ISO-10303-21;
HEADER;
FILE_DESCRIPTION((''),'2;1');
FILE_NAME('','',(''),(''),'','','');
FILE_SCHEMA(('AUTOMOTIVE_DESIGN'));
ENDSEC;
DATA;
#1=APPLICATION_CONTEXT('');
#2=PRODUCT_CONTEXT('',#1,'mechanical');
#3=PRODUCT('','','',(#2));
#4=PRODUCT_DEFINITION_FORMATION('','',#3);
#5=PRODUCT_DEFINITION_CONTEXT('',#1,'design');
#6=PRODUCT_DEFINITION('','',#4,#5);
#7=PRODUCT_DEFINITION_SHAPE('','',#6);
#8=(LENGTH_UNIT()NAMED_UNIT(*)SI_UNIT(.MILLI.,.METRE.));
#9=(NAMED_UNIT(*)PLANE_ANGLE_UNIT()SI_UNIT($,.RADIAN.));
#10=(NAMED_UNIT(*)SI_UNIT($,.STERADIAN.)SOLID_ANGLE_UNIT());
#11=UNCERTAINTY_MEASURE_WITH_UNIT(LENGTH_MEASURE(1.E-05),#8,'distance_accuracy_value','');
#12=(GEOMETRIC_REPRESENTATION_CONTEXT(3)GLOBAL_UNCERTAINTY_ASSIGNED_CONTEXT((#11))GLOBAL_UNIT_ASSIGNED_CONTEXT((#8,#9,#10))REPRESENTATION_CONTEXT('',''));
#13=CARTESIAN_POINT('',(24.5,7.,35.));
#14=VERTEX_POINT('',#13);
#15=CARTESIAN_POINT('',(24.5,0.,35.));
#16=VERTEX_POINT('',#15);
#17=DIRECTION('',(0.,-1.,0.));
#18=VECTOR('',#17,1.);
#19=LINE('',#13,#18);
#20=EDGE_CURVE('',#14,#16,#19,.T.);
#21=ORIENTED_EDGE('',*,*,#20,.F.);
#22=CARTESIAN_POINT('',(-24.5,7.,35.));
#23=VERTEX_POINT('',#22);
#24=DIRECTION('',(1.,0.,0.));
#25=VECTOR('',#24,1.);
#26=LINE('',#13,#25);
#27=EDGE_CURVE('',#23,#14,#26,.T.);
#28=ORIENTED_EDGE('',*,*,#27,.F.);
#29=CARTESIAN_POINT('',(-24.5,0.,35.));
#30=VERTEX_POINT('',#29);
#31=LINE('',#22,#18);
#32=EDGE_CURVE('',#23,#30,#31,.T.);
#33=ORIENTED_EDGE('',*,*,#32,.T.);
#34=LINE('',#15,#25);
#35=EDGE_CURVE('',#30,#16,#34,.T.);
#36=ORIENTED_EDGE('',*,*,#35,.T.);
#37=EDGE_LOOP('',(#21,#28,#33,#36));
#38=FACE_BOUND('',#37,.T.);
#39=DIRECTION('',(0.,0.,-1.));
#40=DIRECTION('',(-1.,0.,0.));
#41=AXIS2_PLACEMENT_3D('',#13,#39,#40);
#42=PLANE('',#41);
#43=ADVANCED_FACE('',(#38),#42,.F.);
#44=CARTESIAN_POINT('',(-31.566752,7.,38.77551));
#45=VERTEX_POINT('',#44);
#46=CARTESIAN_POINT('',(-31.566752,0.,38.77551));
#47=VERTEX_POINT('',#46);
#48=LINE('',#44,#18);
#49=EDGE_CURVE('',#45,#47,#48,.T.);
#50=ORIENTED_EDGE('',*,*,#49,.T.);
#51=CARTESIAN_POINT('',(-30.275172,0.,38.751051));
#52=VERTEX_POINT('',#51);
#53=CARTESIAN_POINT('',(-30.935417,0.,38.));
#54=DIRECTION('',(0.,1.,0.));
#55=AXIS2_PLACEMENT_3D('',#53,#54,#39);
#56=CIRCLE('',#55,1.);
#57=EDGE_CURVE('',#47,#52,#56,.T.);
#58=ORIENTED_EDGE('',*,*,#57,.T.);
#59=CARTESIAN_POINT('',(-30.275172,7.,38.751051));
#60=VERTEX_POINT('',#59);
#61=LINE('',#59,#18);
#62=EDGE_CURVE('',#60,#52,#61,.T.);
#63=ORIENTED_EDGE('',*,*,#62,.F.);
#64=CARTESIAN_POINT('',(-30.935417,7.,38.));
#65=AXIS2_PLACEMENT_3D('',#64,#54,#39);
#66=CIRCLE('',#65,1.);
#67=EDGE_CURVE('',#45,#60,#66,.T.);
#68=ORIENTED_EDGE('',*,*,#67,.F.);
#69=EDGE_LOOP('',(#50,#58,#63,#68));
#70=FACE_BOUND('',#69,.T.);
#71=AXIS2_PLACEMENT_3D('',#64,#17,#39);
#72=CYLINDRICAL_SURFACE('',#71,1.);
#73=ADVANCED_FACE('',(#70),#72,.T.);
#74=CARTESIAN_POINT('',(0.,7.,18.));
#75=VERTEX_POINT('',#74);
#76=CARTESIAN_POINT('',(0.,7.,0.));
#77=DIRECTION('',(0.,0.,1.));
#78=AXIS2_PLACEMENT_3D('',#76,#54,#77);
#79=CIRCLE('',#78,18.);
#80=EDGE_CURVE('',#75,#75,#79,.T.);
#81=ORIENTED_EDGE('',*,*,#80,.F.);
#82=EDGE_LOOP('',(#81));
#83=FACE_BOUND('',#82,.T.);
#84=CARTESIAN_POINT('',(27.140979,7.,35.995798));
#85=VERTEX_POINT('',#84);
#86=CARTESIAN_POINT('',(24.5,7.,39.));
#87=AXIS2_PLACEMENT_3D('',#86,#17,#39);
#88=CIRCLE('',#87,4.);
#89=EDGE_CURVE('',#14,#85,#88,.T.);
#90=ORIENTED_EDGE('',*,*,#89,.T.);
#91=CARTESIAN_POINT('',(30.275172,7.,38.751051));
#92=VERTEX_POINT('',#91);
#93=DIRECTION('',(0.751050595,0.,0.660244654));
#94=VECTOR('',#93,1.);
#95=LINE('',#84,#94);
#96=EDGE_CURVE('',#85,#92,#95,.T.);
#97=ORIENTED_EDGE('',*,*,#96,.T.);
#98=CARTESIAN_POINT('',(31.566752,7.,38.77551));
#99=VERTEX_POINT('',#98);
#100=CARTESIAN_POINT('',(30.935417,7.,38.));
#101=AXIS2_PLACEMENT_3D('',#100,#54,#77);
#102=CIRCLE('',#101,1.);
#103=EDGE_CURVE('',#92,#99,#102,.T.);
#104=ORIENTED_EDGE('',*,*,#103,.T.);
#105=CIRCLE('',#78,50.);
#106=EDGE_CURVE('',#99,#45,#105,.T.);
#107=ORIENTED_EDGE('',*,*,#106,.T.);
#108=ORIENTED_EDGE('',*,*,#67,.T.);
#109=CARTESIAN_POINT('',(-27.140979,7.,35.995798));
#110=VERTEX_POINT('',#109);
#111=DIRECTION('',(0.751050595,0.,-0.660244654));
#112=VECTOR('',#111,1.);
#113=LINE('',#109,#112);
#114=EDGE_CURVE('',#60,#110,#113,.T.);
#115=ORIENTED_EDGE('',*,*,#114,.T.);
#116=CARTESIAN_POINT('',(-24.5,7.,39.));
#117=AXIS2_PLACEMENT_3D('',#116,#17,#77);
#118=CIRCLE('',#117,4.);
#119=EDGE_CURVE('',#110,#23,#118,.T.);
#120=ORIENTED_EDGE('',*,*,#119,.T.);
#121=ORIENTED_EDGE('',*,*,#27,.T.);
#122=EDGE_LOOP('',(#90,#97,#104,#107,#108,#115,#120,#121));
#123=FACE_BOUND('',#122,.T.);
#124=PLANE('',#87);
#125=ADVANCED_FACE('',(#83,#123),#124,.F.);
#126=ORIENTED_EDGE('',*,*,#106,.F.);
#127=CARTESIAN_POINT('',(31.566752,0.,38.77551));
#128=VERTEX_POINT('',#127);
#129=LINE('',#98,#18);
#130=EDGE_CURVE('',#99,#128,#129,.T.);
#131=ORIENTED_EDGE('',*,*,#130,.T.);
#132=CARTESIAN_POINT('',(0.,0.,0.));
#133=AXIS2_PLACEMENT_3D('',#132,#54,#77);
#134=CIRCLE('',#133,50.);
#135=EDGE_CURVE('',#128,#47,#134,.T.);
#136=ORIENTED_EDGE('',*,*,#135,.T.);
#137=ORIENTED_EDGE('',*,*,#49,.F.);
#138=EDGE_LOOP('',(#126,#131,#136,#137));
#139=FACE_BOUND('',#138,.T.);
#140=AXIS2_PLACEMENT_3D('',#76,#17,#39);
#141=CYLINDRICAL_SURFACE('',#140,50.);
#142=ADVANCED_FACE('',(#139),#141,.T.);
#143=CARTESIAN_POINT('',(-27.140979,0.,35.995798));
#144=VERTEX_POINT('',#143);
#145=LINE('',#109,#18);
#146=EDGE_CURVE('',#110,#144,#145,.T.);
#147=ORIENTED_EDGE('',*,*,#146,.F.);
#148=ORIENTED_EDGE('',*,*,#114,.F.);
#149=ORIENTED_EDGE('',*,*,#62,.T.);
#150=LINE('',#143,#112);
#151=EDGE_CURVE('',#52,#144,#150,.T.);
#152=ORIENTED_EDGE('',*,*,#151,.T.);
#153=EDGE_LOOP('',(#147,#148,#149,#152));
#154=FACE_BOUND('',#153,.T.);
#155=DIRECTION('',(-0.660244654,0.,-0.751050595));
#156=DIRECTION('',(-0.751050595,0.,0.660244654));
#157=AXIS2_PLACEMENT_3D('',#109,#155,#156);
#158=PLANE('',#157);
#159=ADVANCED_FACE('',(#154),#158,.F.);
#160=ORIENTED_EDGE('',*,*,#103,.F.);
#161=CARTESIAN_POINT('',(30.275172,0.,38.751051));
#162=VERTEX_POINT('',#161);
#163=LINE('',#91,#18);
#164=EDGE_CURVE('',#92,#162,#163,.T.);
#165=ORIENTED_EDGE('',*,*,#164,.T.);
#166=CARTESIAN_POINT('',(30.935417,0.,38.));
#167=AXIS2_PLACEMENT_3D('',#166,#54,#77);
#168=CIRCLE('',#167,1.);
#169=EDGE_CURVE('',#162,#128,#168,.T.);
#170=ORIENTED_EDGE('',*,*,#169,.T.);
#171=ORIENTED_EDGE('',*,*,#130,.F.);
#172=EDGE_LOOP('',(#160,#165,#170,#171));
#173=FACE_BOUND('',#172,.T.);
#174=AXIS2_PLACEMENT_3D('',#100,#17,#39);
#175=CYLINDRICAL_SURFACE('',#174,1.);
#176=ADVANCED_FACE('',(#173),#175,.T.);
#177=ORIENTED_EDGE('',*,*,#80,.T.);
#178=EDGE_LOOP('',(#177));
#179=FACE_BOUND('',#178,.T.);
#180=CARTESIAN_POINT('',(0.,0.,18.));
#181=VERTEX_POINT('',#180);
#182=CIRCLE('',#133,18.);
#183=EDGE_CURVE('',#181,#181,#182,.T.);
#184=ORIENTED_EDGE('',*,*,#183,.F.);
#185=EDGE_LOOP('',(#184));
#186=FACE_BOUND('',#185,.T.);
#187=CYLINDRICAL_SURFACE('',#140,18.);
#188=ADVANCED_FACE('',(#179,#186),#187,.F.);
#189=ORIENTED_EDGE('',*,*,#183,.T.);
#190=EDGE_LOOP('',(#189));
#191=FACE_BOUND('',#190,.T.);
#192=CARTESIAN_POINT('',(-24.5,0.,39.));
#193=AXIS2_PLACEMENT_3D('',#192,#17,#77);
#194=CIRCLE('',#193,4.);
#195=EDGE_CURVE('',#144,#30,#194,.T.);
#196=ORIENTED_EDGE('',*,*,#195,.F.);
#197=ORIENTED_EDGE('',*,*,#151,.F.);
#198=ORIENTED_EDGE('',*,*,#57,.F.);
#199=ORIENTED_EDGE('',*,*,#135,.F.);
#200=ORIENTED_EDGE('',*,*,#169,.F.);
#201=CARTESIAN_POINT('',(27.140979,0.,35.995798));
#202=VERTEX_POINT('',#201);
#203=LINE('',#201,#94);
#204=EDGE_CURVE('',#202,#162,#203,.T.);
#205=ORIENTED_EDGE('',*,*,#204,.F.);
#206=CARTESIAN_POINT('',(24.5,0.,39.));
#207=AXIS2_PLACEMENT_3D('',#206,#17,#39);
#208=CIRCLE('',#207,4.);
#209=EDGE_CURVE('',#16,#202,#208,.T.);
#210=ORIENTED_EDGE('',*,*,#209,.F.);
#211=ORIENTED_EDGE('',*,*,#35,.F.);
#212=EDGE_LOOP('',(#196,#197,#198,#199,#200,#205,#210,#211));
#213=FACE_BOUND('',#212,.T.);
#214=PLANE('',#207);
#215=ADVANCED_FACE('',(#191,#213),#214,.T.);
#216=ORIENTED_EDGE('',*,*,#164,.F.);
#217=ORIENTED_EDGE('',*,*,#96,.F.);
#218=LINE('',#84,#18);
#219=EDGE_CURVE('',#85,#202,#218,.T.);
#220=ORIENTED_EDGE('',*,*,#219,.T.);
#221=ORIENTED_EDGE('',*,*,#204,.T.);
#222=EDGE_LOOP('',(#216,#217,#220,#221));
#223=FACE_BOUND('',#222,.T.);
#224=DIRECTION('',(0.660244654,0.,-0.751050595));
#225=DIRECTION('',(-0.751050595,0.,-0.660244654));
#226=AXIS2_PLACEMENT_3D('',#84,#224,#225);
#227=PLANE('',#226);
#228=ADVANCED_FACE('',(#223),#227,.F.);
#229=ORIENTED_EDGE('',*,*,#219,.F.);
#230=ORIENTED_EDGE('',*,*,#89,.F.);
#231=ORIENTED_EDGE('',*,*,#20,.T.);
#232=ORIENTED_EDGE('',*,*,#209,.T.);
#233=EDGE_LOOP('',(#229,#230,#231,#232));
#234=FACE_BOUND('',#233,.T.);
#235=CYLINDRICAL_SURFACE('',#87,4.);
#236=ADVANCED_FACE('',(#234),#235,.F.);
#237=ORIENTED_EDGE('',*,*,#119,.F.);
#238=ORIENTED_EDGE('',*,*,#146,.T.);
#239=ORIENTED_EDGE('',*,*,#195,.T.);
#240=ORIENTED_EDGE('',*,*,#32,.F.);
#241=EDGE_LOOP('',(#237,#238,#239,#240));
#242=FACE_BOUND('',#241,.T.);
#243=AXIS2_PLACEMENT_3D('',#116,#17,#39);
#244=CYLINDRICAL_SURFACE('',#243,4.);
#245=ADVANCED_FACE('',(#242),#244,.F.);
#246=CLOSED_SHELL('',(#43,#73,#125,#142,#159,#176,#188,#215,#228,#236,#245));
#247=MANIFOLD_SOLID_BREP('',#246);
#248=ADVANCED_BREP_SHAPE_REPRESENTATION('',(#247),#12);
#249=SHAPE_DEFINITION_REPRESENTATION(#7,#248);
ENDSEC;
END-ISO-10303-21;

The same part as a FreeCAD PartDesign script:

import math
import FreeCAD as App
import Part
import Sketcher
Q = App.Units.Quantity

doc = App.newDocument("Part")
body = doc.addObject("PartDesign::Body", "Body")

# Sketch on XZ plane
sketch1 = body.newObject("Sketcher::SketchObject", "Sketch")
sketch1.AttachmentSupport = (doc.getObject("XZ_Plane"), [""])
sketch1.MapMode = "FlatFace"
sketch1.addGeometry([
    Part.LineSegment(App.Vector(-24.5, 35, 0), App.Vector(24.5, 35, 0)),  # 0
    Part.ArcOfCircle(Part.Circle(App.Vector(24.5, 39, 0), App.Vector(0, 0, 1), 4), math.radians(-90), math.radians(-49)),  # 1
    Part.LineSegment(App.Vector(27.1, 36, 0), App.Vector(30.3, 38.8, 0)),  # 2
    Part.ArcOfCircle(Part.Circle(App.Vector(30.9, 38, 0), App.Vector(0, 0, 1), 1), math.radians(51), math.radians(131)),  # 3
    Part.ArcOfCircle(Part.Circle(App.Vector(0, 0, 0), App.Vector(0, 0, 1), 50), math.radians(129), math.radians(411)),  # 4
    Part.ArcOfCircle(Part.Circle(App.Vector(-30.9, 38, 0), App.Vector(0, 0, 1), 1), math.radians(49), math.radians(129)),  # 5
    Part.LineSegment(App.Vector(-30.3, 38.8, 0), App.Vector(-27.1, 36, 0)),  # 6
    Part.ArcOfCircle(Part.Circle(App.Vector(-24.5, 39, 0), App.Vector(0, 0, 1), 4), math.radians(-131), math.radians(-90)),  # 7
    Part.Circle(App.Vector(0, 0, 0), App.Vector(0, 0, 1), 18),  # 8
], False)
sketch1.addConstraint([
    Sketcher.Constraint("Tangent", 0, 2, 1, 1),
    Sketcher.Constraint("Tangent", 1, 2, 2, 1),
    Sketcher.Constraint("Tangent", 2, 2, 3, 2),
    Sketcher.Constraint("Tangent", 3, 1, 4, 2),
    Sketcher.Constraint("Tangent", 4, 1, 5, 2),
    Sketcher.Constraint("Tangent", 5, 1, 6, 1),
    Sketcher.Constraint("Tangent", 6, 2, 7, 1),
    Sketcher.Constraint("Tangent", 7, 2, 0, 1),
    Sketcher.Constraint("Horizontal", 0),
    Sketcher.Constraint("Coincident", 4, 3, -1, 1),
    Sketcher.Constraint("Coincident", 8, 3, -1, 1),
    Sketcher.Constraint("Equal", 3, 5),
    Sketcher.Constraint("Equal", 1, 7),
    Sketcher.Constraint("Symmetric", 2, 2, 5, 1, -2),
    Sketcher.Constraint("Diameter", 8, Q("36 mm")),
    Sketcher.Constraint("Radius", 1, Q("4 mm")),
    Sketcher.Constraint("Radius", 3, Q("1 mm")),
    Sketcher.Constraint("Radius", 4, Q("50 mm")),
    Sketcher.Constraint("DistanceX", 0, 1, 0, 2, Q("49 mm")),
    Sketcher.Constraint("DistanceY", -1, 1, 1, 3, Q("39 mm")),
    Sketcher.Constraint("DistanceY", -1, 1, 3, 3, Q("38 mm")),
])
pad1 = body.newObject("PartDesign::Pad", "Pad")
pad1.Profile = sketch1
pad1.Length = 7
pad1.Reversed = True

doc.recompute()
